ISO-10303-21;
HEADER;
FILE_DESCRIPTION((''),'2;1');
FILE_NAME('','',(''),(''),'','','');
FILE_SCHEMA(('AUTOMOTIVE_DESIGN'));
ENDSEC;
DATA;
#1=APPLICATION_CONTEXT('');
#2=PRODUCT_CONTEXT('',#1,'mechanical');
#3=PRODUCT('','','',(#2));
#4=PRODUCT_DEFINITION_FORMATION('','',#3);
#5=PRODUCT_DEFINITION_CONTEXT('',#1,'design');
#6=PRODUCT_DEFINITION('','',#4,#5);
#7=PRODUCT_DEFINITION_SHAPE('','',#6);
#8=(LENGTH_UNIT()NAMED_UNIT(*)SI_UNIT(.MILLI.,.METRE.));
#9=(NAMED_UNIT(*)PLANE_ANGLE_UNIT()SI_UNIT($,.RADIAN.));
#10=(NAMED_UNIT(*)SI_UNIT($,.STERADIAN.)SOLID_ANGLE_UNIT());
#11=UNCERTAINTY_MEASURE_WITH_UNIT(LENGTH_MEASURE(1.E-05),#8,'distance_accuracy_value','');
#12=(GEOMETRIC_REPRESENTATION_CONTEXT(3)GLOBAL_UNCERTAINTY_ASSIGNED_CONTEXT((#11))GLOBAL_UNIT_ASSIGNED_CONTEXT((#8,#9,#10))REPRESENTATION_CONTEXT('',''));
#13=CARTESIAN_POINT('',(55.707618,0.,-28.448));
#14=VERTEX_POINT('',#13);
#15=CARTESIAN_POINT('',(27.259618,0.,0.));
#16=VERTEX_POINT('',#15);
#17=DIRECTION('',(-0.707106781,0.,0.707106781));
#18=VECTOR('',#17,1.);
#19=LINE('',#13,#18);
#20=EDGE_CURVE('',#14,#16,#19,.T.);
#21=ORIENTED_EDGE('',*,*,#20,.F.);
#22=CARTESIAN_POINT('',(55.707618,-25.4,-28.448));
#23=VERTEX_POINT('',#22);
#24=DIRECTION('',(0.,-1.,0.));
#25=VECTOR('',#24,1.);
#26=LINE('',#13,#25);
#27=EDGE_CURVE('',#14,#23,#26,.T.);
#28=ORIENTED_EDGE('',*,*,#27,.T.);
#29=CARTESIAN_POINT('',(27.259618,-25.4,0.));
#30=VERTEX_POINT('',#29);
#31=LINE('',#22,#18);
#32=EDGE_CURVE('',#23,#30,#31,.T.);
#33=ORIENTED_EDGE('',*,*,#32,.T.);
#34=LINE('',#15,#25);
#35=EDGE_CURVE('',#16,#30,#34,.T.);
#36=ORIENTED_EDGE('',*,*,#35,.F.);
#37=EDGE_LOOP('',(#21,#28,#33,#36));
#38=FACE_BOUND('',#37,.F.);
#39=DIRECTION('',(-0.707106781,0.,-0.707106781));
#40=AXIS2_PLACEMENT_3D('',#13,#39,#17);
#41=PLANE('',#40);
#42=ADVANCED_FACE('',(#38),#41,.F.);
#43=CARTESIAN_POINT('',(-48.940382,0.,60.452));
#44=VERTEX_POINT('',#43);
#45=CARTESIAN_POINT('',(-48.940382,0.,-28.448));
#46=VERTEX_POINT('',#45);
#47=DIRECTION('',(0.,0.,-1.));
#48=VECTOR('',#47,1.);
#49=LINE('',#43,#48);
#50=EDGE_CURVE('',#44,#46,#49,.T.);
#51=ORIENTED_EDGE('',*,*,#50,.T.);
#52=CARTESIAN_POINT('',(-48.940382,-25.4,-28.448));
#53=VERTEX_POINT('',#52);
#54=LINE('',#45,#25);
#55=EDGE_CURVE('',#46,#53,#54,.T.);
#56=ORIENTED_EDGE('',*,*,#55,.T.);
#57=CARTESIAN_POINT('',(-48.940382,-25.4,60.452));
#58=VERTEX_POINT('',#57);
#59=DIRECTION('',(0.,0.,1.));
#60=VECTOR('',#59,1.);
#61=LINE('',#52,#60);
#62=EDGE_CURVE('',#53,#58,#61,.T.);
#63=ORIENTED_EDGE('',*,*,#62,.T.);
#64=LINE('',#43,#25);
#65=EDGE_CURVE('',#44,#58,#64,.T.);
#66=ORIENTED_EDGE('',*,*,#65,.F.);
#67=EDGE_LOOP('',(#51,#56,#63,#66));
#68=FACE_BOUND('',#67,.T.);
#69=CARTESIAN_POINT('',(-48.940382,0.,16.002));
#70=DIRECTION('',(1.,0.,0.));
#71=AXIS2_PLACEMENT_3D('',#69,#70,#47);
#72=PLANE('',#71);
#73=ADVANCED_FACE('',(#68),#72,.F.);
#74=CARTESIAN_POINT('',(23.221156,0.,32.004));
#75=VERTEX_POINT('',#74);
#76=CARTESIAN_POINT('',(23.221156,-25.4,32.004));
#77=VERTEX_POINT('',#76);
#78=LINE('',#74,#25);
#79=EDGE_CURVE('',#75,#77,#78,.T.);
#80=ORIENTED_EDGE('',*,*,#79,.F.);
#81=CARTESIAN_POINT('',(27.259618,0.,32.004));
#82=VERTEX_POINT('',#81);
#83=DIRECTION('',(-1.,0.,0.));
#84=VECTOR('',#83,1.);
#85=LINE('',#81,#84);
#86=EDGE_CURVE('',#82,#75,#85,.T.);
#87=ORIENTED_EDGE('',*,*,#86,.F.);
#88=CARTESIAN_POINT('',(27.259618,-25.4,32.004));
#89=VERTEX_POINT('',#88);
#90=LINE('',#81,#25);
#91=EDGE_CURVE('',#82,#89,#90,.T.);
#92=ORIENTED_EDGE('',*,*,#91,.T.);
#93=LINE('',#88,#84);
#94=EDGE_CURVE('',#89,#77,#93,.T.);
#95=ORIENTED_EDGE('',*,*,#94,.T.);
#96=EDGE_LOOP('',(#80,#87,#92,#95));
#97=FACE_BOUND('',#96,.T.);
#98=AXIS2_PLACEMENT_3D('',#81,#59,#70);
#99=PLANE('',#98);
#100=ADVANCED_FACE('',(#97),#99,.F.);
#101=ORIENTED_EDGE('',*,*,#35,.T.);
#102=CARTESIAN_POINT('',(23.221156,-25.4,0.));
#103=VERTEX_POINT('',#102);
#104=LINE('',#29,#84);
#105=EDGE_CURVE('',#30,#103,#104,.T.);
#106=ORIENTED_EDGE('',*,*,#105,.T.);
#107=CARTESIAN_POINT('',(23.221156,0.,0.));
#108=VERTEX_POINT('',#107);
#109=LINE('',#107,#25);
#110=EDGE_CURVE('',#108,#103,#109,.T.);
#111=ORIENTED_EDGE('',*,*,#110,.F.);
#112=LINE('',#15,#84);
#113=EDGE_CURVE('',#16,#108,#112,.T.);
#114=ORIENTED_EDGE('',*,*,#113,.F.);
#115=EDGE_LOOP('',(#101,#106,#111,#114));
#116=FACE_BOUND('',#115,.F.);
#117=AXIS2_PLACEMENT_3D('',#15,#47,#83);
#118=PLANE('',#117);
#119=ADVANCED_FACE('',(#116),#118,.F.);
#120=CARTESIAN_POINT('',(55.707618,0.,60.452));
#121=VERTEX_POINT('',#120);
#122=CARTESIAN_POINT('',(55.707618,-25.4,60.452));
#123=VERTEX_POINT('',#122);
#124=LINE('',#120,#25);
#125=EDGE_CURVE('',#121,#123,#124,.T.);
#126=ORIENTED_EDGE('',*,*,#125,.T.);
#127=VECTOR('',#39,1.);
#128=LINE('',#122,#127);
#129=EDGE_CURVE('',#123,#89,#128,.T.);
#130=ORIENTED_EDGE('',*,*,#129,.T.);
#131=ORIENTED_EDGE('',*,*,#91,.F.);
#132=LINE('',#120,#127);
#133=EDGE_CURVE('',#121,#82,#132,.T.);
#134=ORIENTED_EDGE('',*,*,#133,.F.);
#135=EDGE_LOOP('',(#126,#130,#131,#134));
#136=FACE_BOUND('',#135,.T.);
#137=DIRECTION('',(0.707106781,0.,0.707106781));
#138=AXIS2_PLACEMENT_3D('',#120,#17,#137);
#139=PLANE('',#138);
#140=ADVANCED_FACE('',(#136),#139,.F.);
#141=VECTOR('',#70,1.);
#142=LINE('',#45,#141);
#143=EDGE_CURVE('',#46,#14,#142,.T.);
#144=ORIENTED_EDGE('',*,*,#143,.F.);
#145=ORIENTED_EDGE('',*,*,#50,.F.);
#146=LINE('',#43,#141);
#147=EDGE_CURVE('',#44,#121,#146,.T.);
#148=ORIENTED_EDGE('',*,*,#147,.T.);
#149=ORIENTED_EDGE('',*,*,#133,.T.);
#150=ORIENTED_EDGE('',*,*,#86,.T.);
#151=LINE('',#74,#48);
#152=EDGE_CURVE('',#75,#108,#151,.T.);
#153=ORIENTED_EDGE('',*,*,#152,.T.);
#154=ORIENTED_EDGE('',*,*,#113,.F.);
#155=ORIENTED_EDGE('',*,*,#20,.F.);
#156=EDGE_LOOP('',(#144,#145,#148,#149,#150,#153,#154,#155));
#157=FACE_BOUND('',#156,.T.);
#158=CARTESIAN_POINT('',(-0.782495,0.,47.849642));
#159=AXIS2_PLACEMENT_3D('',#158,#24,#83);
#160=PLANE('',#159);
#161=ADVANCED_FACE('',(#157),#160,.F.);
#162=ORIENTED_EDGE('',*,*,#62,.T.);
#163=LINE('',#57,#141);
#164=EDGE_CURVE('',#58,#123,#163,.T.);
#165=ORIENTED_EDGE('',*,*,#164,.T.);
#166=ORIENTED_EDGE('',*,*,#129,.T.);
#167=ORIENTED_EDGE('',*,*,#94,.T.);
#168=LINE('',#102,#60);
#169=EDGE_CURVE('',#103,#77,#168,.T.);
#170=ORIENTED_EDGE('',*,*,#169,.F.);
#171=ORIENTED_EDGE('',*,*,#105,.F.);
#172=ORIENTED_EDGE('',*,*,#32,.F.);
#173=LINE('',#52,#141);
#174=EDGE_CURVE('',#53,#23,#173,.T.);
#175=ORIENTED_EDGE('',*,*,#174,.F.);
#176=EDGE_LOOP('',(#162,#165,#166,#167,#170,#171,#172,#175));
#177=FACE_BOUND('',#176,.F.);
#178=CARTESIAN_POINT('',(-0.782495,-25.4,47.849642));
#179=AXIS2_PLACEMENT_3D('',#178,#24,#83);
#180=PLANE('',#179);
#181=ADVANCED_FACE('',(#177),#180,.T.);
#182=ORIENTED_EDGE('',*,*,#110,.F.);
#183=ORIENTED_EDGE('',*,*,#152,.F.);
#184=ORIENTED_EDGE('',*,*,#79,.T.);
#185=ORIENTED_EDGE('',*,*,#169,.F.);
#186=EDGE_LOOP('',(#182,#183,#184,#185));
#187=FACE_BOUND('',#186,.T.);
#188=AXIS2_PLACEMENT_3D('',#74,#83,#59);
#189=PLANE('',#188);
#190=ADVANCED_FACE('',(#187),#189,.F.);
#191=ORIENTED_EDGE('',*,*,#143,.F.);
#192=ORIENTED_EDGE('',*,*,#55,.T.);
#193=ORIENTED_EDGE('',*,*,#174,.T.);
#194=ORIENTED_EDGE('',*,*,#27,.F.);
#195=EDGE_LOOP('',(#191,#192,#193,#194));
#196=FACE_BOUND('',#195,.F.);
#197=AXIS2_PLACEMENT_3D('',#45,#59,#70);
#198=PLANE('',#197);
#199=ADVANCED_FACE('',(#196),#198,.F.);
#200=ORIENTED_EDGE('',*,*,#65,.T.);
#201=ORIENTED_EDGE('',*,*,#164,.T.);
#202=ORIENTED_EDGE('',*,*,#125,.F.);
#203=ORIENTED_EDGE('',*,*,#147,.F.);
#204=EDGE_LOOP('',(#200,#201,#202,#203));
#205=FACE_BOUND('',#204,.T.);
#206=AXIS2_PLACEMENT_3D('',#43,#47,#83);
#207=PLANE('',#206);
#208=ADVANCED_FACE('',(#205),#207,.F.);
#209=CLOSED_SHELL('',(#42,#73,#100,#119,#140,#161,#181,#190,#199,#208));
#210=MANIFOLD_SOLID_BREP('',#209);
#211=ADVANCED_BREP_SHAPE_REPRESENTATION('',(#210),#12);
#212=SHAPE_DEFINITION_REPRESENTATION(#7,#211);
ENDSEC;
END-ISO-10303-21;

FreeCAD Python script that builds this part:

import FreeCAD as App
import Part
import Sketcher
from FreeCAD import Vector
Q = App.Units.Quantity


def add_polygon(sketch, points):
    """Adds a closed chain of lines whose ends are joined by coincident constraints."""
    first, n = sketch.GeometryCount, len(points)
    for a, b in zip(points, points[1:] + points[:1]):
        sketch.addGeometry(Part.LineSegment(App.Vector(*a, 0), App.Vector(*b, 0)), False)
    for i in range(n):
        sketch.addConstraint(Sketcher.Constraint("Coincident", first + i, 2, first + (i + 1) % n, 1))

doc = App.newDocument("Part")
body = doc.addObject("PartDesign::Body", "Body")

# Sketch on XZ plane
sketch1 = doc.addObject("Sketcher::SketchObject", "Sketch")
body.addObject(sketch1)
sketch1.AttachmentSupport = (doc.XZ_Plane, [""])
sketch1.MapMode = "FlatFace"
add_polygon(sketch1, [(-48.9, -28.4), (55.7, -28.4), (27.3, 0), (23.2, 0), (23.2, 16), (-48.9, 16)])  # lines 0-5
sketch1.addConstraint([
    Sketcher.Constraint("Horizontal", 0),
    Sketcher.Constraint("Horizontal", 2),
    Sketcher.Constraint("Vertical", 3),
    Sketcher.Constraint("Horizontal", 4),
    Sketcher.Constraint("Vertical", 5),
    Sketcher.Constraint("PointOnObject", 1, 2, -1),
    Sketcher.Constraint("Angle", 1, Q("135 deg")),
    Sketcher.Constraint("DistanceX", 4, 2, 1, 2, Q("3 in")),
    Sketcher.Constraint("DistanceX", 0, 1, 0, 2, Q("4.12 in")),
    Sketcher.Constraint("DistanceY", 3, 1, 3, 2, Q("0.63 in")),
    Sketcher.Constraint("DistanceX", 2, 2, 2, 1, Q("4.038462 mm")),
    Sketcher.Constraint("DistanceX", -1, 1, 0, 2, Q("55.707618 mm")),
])
pad1 = doc.addObject("PartDesign::Pad", "Pad")
body.addObject(pad1)
pad1.Profile = sketch1
pad1.Length = Q("1 in")
body2 = doc.addObject("PartDesign::Body", "Body001")
doc.recompute()

body2.BaseFeature = body
doc.recompute()

mirroring = doc.addObject("Part::Mirroring", "Mirroring")
mirroring.Source = body
mirroring.Base = Vector(-12.859613, -12.7, 16.002)
mirroring.Normal = Vector(0, 0, 1)
body3 = doc.addObject("PartDesign::Body", "Body002")
body3.BaseFeature = mirroring
boolean = doc.addObject("PartDesign::Boolean", "Boolean")
body2.addObject(boolean)
boolean.Type = "Fuse"
boolean.addObjects([body3])
doc.recompute()
mirroring.Visibility = False

doc.recompute()
